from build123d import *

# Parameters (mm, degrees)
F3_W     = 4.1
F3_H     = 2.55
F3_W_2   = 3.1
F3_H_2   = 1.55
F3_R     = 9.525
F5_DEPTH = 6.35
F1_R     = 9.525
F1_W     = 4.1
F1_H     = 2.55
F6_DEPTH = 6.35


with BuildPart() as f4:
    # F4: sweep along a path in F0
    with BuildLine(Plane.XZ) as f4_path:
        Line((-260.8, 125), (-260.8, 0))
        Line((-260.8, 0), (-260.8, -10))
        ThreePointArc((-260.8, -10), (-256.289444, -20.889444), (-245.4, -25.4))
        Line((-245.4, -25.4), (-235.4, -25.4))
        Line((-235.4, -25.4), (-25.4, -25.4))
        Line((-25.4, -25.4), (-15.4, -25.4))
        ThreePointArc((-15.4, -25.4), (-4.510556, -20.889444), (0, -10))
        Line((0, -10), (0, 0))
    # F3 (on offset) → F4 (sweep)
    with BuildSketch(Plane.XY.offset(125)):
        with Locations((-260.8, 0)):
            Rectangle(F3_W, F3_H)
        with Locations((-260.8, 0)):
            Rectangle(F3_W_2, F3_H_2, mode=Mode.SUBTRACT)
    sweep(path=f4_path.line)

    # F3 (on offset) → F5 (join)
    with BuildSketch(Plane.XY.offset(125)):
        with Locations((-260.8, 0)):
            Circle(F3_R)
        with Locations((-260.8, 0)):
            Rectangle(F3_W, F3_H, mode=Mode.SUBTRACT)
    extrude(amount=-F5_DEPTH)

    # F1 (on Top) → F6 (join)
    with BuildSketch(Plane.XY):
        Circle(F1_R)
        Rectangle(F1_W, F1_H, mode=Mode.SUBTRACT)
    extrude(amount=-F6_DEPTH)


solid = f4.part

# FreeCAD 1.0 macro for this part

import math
import FreeCAD as App
import Part
import Sketcher

V = App.Vector


def add_polygon(sketch, points):
    """Adds a closed chain of lines whose ends are joined by coincident constraints."""
    first, n = sketch.GeometryCount, len(points)
    for a, b in zip(points, points[1:] + points[:1]):
        sketch.addGeometry(Part.LineSegment(App.Vector(*a, 0), App.Vector(*b, 0)), False)
    for i in range(n):
        sketch.addConstraint(Sketcher.Constraint("Coincident", first + i, 2, first + (i + 1) % n, 1))

doc = App.newDocument("Part")
body = doc.addObject("PartDesign::Body", "Body")

# Sketch on XY plane
sketch1 = doc.addObject("Sketcher::SketchObject", "Sketch")
body.addObject(sketch1)
sketch1.AttachmentSupport = (doc.XY_Plane, [""])
sketch1.MapMode = "FlatFace"
sketch1.AttachmentOffset = App.Placement(V(0, 0, 125), App.Rotation())
add_polygon(sketch1, [(-262.9, 1.3), (-262.9, -1.3), (-258.8, -1.3), (-258.8, 1.3)])  # lines 0-3
add_polygon(sketch1, [(-259.2, -0.8), (-262.4, -0.8), (-262.4, 0.8), (-259.2, 0.8)])  # lines 4-7
sketch1.addConstraint(Sketcher.Constraint("Vertical", 0))
sketch1.addConstraint(Sketcher.Constraint("Horizontal", 1))
sketch1.addConstraint(Sketcher.Constraint("Vertical", 2))
sketch1.addConstraint(Sketcher.Constraint("Horizontal", 3))
sketch1.addConstraint(Sketcher.Constraint("Horizontal", 4))
sketch1.addConstraint(Sketcher.Constraint("Vertical", 5))
sketch1.addConstraint(Sketcher.Constraint("Horizontal", 6))
sketch1.addConstraint(Sketcher.Constraint("Vertical", 7))
sketch1.addConstraint(Sketcher.Constraint("DistanceX", 1, 1, 1, 2, 4.1))
sketch1.addConstraint(Sketcher.Constraint("DistanceX", 4, 2, 4, 1, 3.1))
sketch1.addConstraint(Sketcher.Constraint("DistanceY", 0, 2, 0, 1, 2.55))
sketch1.addConstraint(Sketcher.Constraint("DistanceY", 5, 1, 5, 2, 1.55))
sketch1.addConstraint(Sketcher.Constraint("DistanceX", 0, 2, 4, 2, 0.5))
sketch1.addConstraint(Sketcher.Constraint("DistanceY", 0, 2, 4, 2, 0.5))
sketch1.addConstraint(Sketcher.Constraint("DistanceX", 0, 2, -1, 1, 262.85))
sketch1.addConstraint(Sketcher.Constraint("DistanceY", 0, 2, -1, 1, 1.275))

# Sketch on XZ plane
sketch2 = doc.addObject("Sketcher::SketchObject", "Sketch001")
body.addObject(sketch2)
sketch2.AttachmentSupport = (doc.XZ_Plane, [""])
sketch2.MapMode = "FlatFace"
sketch2.addGeometry(Part.LineSegment(V(-261, 125, 0), V(-261, -10, 0)), False)
sketch2.addGeometry(Part.ArcOfCircle(Part.Circle(V(-245, -10, 0), V(0, 0, 1), 15), math.radians(-180), math.radians(-90)), False)
sketch2.addGeometry(Part.LineSegment(V(-245, -25, 0), V(-15, -25, 0)), False)
sketch2.addGeometry(Part.ArcOfCircle(Part.Circle(V(-15, -10, 0), V(0, 0, 1), 15), math.radians(-90), math.radians(0)), False)
sketch2.addGeometry(Part.LineSegment(V(0, -10, 0), V(0, 0, 0)), False)
sketch2.addConstraint(Sketcher.Constraint("Tangent", 0, 2, 1, 1))
sketch2.addConstraint(Sketcher.Constraint("Tangent", 1, 2, 2, 1))
sketch2.addConstraint(Sketcher.Constraint("Tangent", 2, 2, 3, 1))
sketch2.addConstraint(Sketcher.Constraint("Tangent", 3, 2, 4, 1))
sketch2.addConstraint(Sketcher.Constraint("Vertical", 0))
sketch2.addConstraint(Sketcher.Constraint("Horizontal", 2))
sketch2.addConstraint(Sketcher.Constraint("Vertical", 4))
sketch2.addConstraint(Sketcher.Constraint("Coincident", 4, 2, -1, 1))
sketch2.addConstraint(Sketcher.Constraint("Equal", 1, 3))
sketch2.addConstraint(Sketcher.Constraint("Radius", 1, 15.400001))
sketch2.addConstraint(Sketcher.Constraint("DistanceX", 2, 1, 2, 2, 230.0))
sketch2.addConstraint(Sketcher.Constraint("DistanceY", 0, 2, 0, 1, 135.0))
sketch2.addConstraint(Sketcher.Constraint("DistanceY", 4, 1, 4, 2, 10.0))
doc.recompute()

additivepipe = doc.addObject("PartDesign::AdditivePipe", "AdditivePipe")
body.addObject(additivepipe)
additivepipe.Profile = sketch1
additivepipe.Spine = (sketch2, ["Edge1", "Edge2", "Edge3", "Edge4", "Edge5"])

# Sketch on XY plane
sketch3 = doc.addObject("Sketcher::SketchObject", "Sketch002")
body.addObject(sketch3)
sketch3.AttachmentSupport = (doc.XY_Plane, [""])
sketch3.MapMode = "FlatFace"
sketch3.AttachmentOffset = App.Placement(V(0, 0, 125), App.Rotation())
sketch3.addGeometry(Part.Circle(V(-260.8, 0, 0), V(0, 0, 1), 9.5), False)  # 0
add_polygon(sketch3, [(-258.8, -1.3), (-262.9, -1.3), (-262.9, 1.3), (-258.8, 1.3)])  # lines 1-4
sketch3.addConstraint(Sketcher.Constraint("Horizontal", 1))
sketch3.addConstraint(Sketcher.Constraint("Vertical", 2))
sketch3.addConstraint(Sketcher.Constraint("Horizontal", 3))
sketch3.addConstraint(Sketcher.Constraint("Vertical", 4))
sketch3.addConstraint(Sketcher.Constraint("PointOnObject", 0, 3, -1))
sketch3.addConstraint(Sketcher.Constraint("Diameter", 0, 19.05))
sketch3.addConstraint(Sketcher.Constraint("DistanceX", 1, 2, 1, 1, 4.1))
sketch3.addConstraint(Sketcher.Constraint("DistanceY", 2, 1, 2, 2, 2.55))
sketch3.addConstraint(Sketcher.Constraint("DistanceX", 0, 3, -1, 1, 260.8))
sketch3.addConstraint(Sketcher.Constraint("DistanceX", 1, 2, -1, 1, 262.85))
sketch3.addConstraint(Sketcher.Constraint("DistanceY", 1, 2, -1, 1, 1.275))
pad1 = doc.addObject("PartDesign::Pad", "Pad")
body.addObject(pad1)
pad1.Profile = sketch3
pad1.Length = 6.35
pad1.Reversed = True

# Sketch on XY plane
sketch4 = doc.addObject("Sketcher::SketchObject", "Sketch003")
body.addObject(sketch4)
sketch4.AttachmentSupport = (doc.XY_Plane, [""])
sketch4.MapMode = "FlatFace"
sketch4.addGeometry(Part.Circle(V(0, 0, 0), V(0, 0, 1), 9.5), False)  # 0
add_polygon(sketch4, [(2, -1.3), (-2, -1.3), (-2, 1.3), (2, 1.3)])  # lines 1-4
sketch4.addConstraint(Sketcher.Constraint("Horizontal", 1))
sketch4.addConstraint(Sketcher.Constraint("Vertical", 2))
sketch4.addConstraint(Sketcher.Constraint("Horizontal", 3))
sketch4.addConstraint(Sketcher.Constraint("Vertical", 4))
sketch4.addConstraint(Sketcher.Constraint("Coincident", 0, 3, -1, 1))
sketch4.addConstraint(Sketcher.Constraint("Symmetric", 1, 2, 3, 2, -1, 1))
sketch4.addConstraint(Sketcher.Constraint("Diameter", 0, 19.05))
sketch4.addConstraint(Sketcher.Constraint("DistanceX", 1, 2, 1, 1, 4.1))
sketch4.addConstraint(Sketcher.Constraint("DistanceY", 2, 1, 2, 2, 2.55))
pad2 = doc.addObject("PartDesign::Pad", "Pad001")
body.addObject(pad2)
pad2.Profile = sketch4
pad2.Length = 6.35
pad2.Reversed = True

doc.recompute()
